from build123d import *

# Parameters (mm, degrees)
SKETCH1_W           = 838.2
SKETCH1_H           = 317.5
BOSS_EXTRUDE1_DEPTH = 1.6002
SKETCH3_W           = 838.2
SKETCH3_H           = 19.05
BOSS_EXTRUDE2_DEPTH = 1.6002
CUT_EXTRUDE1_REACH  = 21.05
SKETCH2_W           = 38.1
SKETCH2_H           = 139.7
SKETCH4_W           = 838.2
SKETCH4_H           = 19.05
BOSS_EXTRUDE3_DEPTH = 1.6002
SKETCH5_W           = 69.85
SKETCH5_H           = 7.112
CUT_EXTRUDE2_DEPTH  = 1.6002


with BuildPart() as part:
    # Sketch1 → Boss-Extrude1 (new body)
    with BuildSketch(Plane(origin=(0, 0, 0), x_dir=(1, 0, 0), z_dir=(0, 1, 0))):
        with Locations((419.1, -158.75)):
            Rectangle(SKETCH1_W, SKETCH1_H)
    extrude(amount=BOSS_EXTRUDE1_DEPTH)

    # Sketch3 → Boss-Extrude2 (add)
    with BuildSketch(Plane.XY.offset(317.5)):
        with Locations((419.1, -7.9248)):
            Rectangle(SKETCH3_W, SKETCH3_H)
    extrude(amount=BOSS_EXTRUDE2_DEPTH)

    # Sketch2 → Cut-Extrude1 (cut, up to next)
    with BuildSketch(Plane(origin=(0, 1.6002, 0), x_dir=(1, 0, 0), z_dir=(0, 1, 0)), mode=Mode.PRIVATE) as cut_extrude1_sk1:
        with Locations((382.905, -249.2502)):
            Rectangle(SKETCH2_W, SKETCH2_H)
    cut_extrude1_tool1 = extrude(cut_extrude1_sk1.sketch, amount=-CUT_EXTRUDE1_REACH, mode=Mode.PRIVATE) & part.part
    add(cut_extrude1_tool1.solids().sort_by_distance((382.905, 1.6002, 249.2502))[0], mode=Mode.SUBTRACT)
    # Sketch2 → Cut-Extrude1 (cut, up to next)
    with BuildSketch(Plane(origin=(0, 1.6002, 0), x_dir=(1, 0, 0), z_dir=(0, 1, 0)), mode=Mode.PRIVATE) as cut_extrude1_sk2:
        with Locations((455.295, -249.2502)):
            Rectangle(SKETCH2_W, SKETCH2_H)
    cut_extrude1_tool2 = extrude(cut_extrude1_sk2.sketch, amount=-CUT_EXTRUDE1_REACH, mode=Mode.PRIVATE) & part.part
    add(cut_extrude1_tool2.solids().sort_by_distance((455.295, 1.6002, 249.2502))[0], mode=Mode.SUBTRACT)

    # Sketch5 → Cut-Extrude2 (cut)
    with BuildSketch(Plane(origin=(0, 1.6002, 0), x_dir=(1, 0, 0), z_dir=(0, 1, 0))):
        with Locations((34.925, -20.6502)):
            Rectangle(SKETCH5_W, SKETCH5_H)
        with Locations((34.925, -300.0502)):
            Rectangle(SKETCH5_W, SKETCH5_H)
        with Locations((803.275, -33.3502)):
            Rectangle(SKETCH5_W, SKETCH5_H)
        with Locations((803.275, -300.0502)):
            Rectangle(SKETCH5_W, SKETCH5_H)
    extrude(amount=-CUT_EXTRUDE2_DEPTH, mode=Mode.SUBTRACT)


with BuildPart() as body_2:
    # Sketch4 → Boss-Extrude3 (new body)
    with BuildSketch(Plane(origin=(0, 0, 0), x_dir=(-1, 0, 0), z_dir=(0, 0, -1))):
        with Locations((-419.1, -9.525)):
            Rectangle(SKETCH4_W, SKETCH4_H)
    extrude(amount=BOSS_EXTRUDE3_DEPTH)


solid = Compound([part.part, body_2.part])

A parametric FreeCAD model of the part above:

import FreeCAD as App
import Part
import Sketcher
from FreeCAD import Vector
Q = App.Units.Quantity


def add_polygon(sketch, points):
    """Adds a closed chain of lines whose ends are joined by coincident constraints."""
    first, n = sketch.GeometryCount, len(points)
    for a, b in zip(points, points[1:] + points[:1]):
        sketch.addGeometry(Part.LineSegment(App.Vector(*a, 0), App.Vector(*b, 0)), False)
    for i in range(n):
        sketch.addConstraint(Sketcher.Constraint("Coincident", first + i, 2, first + (i + 1) % n, 1))

doc = App.newDocument("Part")
body = doc.addObject("PartDesign::Body", "Body")

# Sketch on XZ plane
sketch1 = body.newObject("Sketcher::SketchObject", "Sketch")
sketch1.AttachmentSupport = (doc.getObject("XZ_Plane"), [""])
sketch1.MapMode = "FlatFace"
add_polygon(sketch1, [(0, 0), (0, 317.5), (838.2, 317.5), (838.2, 0)])  # lines 0-3
sketch1.addConstraint([
    Sketcher.Constraint("Vertical", 0),
    Sketcher.Constraint("Horizontal", 1),
    Sketcher.Constraint("Vertical", 2),
    Sketcher.Constraint("Horizontal", 3),
    Sketcher.Constraint("Coincident", 3, 2, -1, 1),
    Sketcher.Constraint("DistanceX", 1, 1, 1, 2, Q("33 in")),
    Sketcher.Constraint("DistanceY", 0, 1, 0, 2, Q("12.5 in")),
])
pad1 = body.newObject("PartDesign::Pad", "Pad")
pad1.Profile = sketch1
pad1.Length = Q("0.063 in")
pad1.Reversed = True

# Sketch on XY plane
sketch2 = body.newObject("Sketcher::SketchObject", "Sketch001")
sketch2.AttachmentSupport = (doc.getObject("XY_Plane"), [""])
sketch2.MapMode = "FlatFace"
sketch2.AttachmentOffset = App.Placement(Vector(0, 0, 12.5 * 25.4), App.Rotation())
add_polygon(sketch2, [(0, 1.6002), (0, -17.4498), (838.2, -17.4498), (838.2, 1.6002)])  # lines 0-3
sketch2.addConstraint([
    Sketcher.Constraint("Vertical", 0),
    Sketcher.Constraint("Horizontal", 1),
    Sketcher.Constraint("Vertical", 2),
    Sketcher.Constraint("Horizontal", 3),
    Sketcher.Constraint("PointOnObject", 0, 2, -2),
    Sketcher.Constraint("DistanceX", 1, 1, 1, 2, Q("33 in")),
    Sketcher.Constraint("DistanceY", 0, 2, 0, 1, Q("0.75 in")),
    Sketcher.Constraint("DistanceY", 0, 2, -1, 1, Q("0.687 in")),
])
pad2 = body.newObject("PartDesign::Pad", "Pad001")
pad2.Profile = sketch2
pad2.Length = Q("0.063 in")

# Sketch on XZ plane
sketch3 = body.newObject("Sketcher::SketchObject", "Sketch002")
sketch3.AttachmentSupport = (doc.getObject("XZ_Plane"), [""])
sketch3.MapMode = "FlatFace"
sketch3.AttachmentOffset = App.Placement(Vector(0, 0, -0.063 * 25.4), App.Rotation())
add_polygon(sketch3, [(363.855, 179.4002), (363.855, 319.1002), (401.955, 319.1002), (401.955, 179.4002)])  # lines 0-3
sketch3.addConstraint([
    Sketcher.Constraint("Vertical", 0),
    Sketcher.Constraint("Horizontal", 1),
    Sketcher.Constraint("Vertical", 2),
    Sketcher.Constraint("Horizontal", 3),
    Sketcher.Constraint("DistanceX", 1, 1, 1, 2, Q("1.5 in")),
    Sketcher.Constraint("DistanceY", 0, 1, 0, 2, Q("5.5 in")),
    Sketcher.Constraint("DistanceX", -1, 1, 0, 2, Q("14.325 in")),
    Sketcher.Constraint("DistanceY", -1, 1, 0, 2, Q("12.563 in")),
])
pocket1 = body.newObject("PartDesign::Pocket", "Pocket")
pocket1.Profile = sketch3
pocket1.Length = Q("0.75 in")
pocket1.Reversed = True

# Sketch on XZ plane
sketch4 = body.newObject("Sketcher::SketchObject", "Sketch003")
sketch4.AttachmentSupport = (doc.getObject("XZ_Plane"), [""])
sketch4.MapMode = "FlatFace"
sketch4.AttachmentOffset = App.Placement(Vector(0, 0, -0.063 * 25.4), App.Rotation())
add_polygon(sketch4, [(436.245, 179.4002), (436.245, 319.1002), (474.345, 319.1002), (474.345, 179.4002)])  # lines 0-3
sketch4.addConstraint([
    Sketcher.Constraint("Vertical", 0),
    Sketcher.Constraint("Horizontal", 1),
    Sketcher.Constraint("Vertical", 2),
    Sketcher.Constraint("Horizontal", 3),
    Sketcher.Constraint("DistanceX", 1, 1, 1, 2, Q("1.5 in")),
    Sketcher.Constraint("DistanceY", 0, 1, 0, 2, Q("5.5 in")),
    Sketcher.Constraint("DistanceX", -1, 1, 0, 2, Q("17.175 in")),
    Sketcher.Constraint("DistanceY", -1, 1, 0, 2, Q("12.563 in")),
])
pocket2 = body.newObject("PartDesign::Pocket", "Pocket001")
pocket2.Profile = sketch4
pocket2.Length = Q("0.75 in")
pocket2.Reversed = True

# Sketch on XZ plane
sketch5 = body.newObject("Sketcher::SketchObject", "Sketch004")
sketch5.AttachmentSupport = (doc.getObject("XZ_Plane"), [""])
sketch5.MapMode = "FlatFace"
sketch5.AttachmentOffset = App.Placement(Vector(0, 0, -0.063 * 25.4), App.Rotation())
add_polygon(sketch5, [(0, 17.0942), (0, 24.2062), (69.85, 24.2062), (69.85, 17.0942)])  # lines 0-3
add_polygon(sketch5, [(0, 296.4942), (0, 303.6062), (69.85, 303.6062), (69.85, 296.4942)])  # lines 4-7
add_polygon(sketch5, [(768.35, 29.7942), (768.35, 36.9062), (838.2, 36.9062), (838.2, 29.7942)])  # lines 8-11
add_polygon(sketch5, [(768.35, 296.4942), (768.35, 303.6062), (838.2, 303.6062), (838.2, 296.4942)])  # lines 12-15
sketch5.addConstraint([
    Sketcher.Constraint("Vertical", 0),
    Sketcher.Constraint("Horizontal", 1),
    Sketcher.Constraint("Vertical", 2),
    Sketcher.Constraint("Horizontal", 3),
    Sketcher.Constraint("Vertical", 4),
    Sketcher.Constraint("Horizontal", 5),
    Sketcher.Constraint("Vertical", 6),
    Sketcher.Constraint("Horizontal", 7),
    Sketcher.Constraint("Vertical", 8),
    Sketcher.Constraint("Horizontal", 9),
    Sketcher.Constraint("Vertical", 10),
    Sketcher.Constraint("Horizontal", 11),
    Sketcher.Constraint("Vertical", 12),
    Sketcher.Constraint("Horizontal", 13),
    Sketcher.Constraint("Vertical", 14),
    Sketcher.Constraint("Horizontal", 15),
    Sketcher.Constraint("PointOnObject", 0, 2, -2),
    Sketcher.Constraint("PointOnObject", 4, 2, -2),
    Sketcher.Constraint("Horizontal", 5, 2, 12, 2),
    Sketcher.Constraint("Horizontal", 7, 2, 14, 2),
    Sketcher.Constraint("Vertical", 2, 2, 5, 2),
    Sketcher.Constraint("Vertical", 11, 2, 12, 2),
    Sketcher.Constraint("Vertical", 10, 2, 13, 2),
    Sketcher.Constraint("Equal", 7, 9),
    Sketcher.Constraint("Equal", 2, 4),
    Sketcher.Constraint("Equal", 6, 8),
    Sketcher.Constraint("DistanceX", -1, 1, 9, 2, Q("33 in")),
    Sketcher.Constraint("DistanceY", 0, 2, 4, 2, Q("11 in")),
    Sketcher.Constraint("DistanceX", 1, 1, 1, 2, Q("2.75 in")),
    Sketcher.Constraint("DistanceY", 0, 1, 0, 2, Q("0.28 in")),
    Sketcher.Constraint("DistanceY", 1, 2, 8, 2, Q("0.5 in")),
    Sketcher.Constraint("DistanceY", -1, 1, 0, 2, Q("0.953 in")),
])
pocket3 = body.newObject("PartDesign::Pocket", "Pocket002")
pocket3.Profile = sketch5
pocket3.Length = Q("0.063 in")
pocket3.Reversed = True
body2 = doc.addObject("PartDesign::Body", "Body001")

# Sketch on XY plane
sketch6 = body2.newObject("Sketcher::SketchObject", "Sketch005")
sketch6.AttachmentSupport = (doc.getObject("XY_Plane001"), [""])
sketch6.MapMode = "FlatFace"
add_polygon(sketch6, [(838.2, 0), (838.2, -19.05), (0, -19.05), (0, 0)])  # lines 0-3
sketch6.addConstraint([
    Sketcher.Constraint("Vertical", 0),
    Sketcher.Constraint("Horizontal", 1),
    Sketcher.Constraint("Vertical", 2),
    Sketcher.Constraint("Horizontal", 3),
    Sketcher.Constraint("Coincident", 2, 2, -1, 1),
    Sketcher.Constraint("DistanceX", 1, 2, 1, 1, Q("33 in")),
    Sketcher.Constraint("DistanceY", 0, 2, 0, 1, Q("0.75 in")),
])
pad3 = body2.newObject("PartDesign::Pad", "Pad002")
pad3.Profile = sketch6
pad3.Length = Q("0.063 in")
pad3.Reversed = True

doc.recompute()
